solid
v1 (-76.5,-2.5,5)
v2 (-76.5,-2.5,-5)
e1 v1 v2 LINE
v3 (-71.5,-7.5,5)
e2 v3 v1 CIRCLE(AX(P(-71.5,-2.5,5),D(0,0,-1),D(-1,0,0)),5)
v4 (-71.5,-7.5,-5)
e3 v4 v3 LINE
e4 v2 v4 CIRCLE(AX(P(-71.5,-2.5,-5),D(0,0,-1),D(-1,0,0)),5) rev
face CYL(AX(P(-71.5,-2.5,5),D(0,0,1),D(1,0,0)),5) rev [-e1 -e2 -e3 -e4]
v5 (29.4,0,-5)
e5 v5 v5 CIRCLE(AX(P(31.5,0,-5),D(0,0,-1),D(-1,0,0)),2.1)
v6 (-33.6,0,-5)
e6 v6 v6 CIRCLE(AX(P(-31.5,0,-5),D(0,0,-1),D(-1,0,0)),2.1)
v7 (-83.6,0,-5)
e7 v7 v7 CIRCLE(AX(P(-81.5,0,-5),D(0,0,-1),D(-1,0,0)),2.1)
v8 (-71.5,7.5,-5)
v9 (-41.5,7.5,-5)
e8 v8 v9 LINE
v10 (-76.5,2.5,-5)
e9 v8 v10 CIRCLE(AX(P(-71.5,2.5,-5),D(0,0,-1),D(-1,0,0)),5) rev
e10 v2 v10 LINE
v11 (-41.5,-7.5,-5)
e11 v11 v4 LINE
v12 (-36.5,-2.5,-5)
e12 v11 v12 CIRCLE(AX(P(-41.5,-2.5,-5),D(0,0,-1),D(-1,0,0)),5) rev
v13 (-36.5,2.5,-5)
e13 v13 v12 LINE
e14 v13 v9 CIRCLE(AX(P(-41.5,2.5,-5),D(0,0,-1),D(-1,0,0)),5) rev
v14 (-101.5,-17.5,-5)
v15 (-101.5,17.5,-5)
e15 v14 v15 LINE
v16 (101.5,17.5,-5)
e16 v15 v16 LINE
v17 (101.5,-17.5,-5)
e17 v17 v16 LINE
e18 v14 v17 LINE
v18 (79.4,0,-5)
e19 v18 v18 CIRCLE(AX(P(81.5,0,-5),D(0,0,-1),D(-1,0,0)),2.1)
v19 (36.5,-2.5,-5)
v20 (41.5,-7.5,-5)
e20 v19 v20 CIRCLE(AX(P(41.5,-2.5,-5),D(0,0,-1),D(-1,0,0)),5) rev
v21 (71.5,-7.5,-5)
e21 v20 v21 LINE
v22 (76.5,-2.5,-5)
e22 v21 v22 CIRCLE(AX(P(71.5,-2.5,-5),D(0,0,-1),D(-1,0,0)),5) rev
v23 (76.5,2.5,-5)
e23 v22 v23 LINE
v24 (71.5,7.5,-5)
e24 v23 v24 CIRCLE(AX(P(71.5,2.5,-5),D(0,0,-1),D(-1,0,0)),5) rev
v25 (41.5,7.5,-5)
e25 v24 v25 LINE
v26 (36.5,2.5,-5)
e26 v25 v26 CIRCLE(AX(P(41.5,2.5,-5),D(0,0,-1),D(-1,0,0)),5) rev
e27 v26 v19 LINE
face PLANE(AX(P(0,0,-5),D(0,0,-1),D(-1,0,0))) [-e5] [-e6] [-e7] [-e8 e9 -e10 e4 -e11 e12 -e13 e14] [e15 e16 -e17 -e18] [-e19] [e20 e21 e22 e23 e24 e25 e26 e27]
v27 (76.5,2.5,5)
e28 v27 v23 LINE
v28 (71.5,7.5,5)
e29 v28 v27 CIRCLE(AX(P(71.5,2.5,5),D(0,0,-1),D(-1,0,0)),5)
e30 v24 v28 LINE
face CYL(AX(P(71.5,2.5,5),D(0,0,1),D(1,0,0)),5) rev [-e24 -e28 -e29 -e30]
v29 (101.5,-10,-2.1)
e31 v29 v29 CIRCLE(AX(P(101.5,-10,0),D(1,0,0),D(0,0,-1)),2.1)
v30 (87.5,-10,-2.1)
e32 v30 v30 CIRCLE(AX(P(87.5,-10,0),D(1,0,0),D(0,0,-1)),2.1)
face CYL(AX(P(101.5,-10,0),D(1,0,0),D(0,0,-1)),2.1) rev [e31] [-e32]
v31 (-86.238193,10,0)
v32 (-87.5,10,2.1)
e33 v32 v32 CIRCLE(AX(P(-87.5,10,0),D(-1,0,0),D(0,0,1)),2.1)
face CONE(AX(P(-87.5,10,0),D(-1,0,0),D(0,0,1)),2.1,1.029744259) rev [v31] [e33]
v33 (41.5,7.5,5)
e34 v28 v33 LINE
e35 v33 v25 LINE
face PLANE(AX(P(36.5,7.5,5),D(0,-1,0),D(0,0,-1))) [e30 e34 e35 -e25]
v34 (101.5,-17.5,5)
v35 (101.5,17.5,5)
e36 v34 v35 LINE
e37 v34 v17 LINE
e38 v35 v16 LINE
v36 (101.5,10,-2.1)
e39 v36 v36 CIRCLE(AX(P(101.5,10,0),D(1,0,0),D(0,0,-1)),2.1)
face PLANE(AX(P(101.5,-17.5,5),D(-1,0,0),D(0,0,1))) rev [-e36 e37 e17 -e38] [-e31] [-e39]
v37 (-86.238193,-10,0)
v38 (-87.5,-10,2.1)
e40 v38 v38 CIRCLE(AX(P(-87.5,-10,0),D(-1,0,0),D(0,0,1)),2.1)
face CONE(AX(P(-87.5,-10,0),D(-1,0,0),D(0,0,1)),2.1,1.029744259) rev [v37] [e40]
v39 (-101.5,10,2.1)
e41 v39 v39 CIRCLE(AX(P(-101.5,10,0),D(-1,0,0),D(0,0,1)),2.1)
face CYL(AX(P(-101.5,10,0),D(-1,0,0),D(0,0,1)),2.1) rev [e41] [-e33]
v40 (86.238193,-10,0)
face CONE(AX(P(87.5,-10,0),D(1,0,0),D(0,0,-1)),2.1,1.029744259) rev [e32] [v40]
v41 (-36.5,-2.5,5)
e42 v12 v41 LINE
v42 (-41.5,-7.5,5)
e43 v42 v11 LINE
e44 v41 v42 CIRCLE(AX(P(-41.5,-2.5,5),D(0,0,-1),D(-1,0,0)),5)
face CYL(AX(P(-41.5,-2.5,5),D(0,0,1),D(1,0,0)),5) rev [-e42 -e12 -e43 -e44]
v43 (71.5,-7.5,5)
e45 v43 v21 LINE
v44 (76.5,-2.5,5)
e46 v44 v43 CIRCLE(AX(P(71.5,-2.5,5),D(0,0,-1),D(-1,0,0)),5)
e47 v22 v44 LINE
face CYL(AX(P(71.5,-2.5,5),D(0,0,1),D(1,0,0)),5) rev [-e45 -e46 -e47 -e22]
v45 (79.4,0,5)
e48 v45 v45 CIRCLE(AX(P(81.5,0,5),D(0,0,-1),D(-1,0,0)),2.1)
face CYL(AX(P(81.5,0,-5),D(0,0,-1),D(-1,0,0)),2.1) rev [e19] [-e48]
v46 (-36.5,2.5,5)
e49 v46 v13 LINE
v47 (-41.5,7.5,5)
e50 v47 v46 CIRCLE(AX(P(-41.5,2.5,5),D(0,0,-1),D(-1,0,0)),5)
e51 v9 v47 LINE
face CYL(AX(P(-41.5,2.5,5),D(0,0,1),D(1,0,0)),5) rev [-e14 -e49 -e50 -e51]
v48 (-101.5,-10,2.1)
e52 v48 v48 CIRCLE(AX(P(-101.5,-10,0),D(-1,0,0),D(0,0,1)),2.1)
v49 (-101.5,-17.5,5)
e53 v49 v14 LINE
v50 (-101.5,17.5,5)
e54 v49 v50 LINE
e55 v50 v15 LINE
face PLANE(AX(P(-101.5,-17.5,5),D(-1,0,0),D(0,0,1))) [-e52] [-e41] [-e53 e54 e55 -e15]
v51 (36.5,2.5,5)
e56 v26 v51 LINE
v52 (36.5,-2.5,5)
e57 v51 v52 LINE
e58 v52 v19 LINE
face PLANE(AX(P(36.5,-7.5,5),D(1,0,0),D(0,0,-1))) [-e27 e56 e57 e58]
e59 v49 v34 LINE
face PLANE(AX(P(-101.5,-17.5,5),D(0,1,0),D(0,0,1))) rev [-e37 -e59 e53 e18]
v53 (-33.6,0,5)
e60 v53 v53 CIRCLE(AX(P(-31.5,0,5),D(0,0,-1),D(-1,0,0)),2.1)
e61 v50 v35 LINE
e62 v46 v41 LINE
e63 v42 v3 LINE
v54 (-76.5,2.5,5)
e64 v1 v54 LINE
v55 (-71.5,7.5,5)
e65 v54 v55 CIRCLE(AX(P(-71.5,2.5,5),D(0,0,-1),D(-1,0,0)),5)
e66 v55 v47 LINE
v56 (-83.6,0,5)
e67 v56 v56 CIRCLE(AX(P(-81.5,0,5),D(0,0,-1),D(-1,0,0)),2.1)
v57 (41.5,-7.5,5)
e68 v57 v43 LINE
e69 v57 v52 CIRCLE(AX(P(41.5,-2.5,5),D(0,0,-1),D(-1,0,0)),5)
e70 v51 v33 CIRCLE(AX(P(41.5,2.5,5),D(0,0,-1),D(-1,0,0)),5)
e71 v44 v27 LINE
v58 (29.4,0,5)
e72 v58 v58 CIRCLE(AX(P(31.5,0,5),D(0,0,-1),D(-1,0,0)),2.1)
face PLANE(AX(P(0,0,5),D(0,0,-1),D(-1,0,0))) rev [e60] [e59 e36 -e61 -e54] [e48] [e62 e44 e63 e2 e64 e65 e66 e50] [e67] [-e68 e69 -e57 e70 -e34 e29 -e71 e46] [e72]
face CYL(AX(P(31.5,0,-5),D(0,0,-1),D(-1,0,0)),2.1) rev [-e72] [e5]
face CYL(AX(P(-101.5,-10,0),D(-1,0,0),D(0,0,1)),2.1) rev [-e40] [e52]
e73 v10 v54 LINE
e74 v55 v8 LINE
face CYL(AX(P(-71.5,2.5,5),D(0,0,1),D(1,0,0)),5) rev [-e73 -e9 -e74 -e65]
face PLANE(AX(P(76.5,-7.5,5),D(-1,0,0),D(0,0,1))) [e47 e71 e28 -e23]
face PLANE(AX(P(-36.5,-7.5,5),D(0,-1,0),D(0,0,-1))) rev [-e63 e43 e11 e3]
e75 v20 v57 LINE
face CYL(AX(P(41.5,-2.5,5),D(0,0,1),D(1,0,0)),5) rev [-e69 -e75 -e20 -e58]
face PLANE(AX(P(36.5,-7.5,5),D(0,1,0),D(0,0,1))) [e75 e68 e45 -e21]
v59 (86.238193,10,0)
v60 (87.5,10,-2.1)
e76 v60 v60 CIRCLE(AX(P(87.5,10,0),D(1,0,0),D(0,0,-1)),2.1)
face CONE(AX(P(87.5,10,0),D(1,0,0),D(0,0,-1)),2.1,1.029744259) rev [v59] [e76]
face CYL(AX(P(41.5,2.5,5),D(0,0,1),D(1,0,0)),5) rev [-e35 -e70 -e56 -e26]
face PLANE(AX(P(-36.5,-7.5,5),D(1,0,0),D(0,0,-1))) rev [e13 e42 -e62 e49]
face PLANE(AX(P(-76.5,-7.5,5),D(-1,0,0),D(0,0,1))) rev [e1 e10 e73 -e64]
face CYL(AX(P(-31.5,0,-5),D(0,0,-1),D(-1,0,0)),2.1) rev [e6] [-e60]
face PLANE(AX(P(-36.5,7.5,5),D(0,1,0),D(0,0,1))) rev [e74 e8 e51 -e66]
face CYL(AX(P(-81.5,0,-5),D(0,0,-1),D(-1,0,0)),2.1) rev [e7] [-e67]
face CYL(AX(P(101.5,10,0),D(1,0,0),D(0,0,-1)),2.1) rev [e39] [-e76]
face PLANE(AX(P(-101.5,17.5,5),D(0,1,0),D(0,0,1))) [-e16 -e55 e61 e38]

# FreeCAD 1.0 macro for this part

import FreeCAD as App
import Part
import Sketcher

V = App.Vector
Q = App.Units.Quantity


def edges_at(feature, points):
    """Names of the edges that pass closest to the given points."""
    edges = feature.Shape.Edges
    near = lambda p: min(range(len(edges)), key=lambda i: edges[i].distToShape(Part.Vertex(*p))[0])
    return sorted({f"Edge{near(p) + 1}" for p in points})


def add_polygon(sketch, points):
    """Adds a closed chain of lines whose ends are joined by coincident constraints."""
    first, n = sketch.GeometryCount, len(points)
    for a, b in zip(points, points[1:] + points[:1]):
        sketch.addGeometry(Part.LineSegment(App.Vector(*a, 0), App.Vector(*b, 0)), False)
    for i in range(n):
        sketch.addConstraint(Sketcher.Constraint("Coincident", first + i, 2, first + (i + 1) % n, 1))

doc = App.newDocument("Part")
body = doc.addObject("PartDesign::Body", "Body")

# Sketch on XY plane
sketch1 = body.newObject("Sketcher::SketchObject", "Sketch")
sketch1.AttachmentSupport = (doc.getObject("XY_Plane"), [""])
sketch1.MapMode = "FlatFace"
add_polygon(sketch1, [(-101.5, 17.5), (-101.5, -17.5), (101.5, -17.5), (101.5, 17.5)])  # lines 0-3
sketch1.addConstraint([
    Sketcher.Constraint("Vertical", 0),
    Sketcher.Constraint("Horizontal", 1),
    Sketcher.Constraint("Vertical", 2),
    Sketcher.Constraint("Horizontal", 3),
    Sketcher.Constraint("Symmetric", 0, 2, 2, 2, -1, 1),
    Sketcher.Constraint("DistanceX", 1, 1, 1, 2, Q("203 mm")),
    Sketcher.Constraint("DistanceY", 0, 2, 0, 1, Q("35 mm")),
])
pad1 = body.newObject("PartDesign::Pad", "Pad")
pad1.Profile = sketch1
pad1.Length = 10
pad1.Midplane = True

# Sketch on XZ plane
sketch2 = body.newObject("Sketcher::SketchObject", "Sketch001")
sketch2.AttachmentSupport = (doc.getObject("XZ_Plane"), [""])
sketch2.MapMode = "FlatFace"
sketch2.AttachmentOffset = App.Placement(V(0, 0, -10), App.Rotation())
add_polygon(sketch2, [(-86.238193, 0), (-101.5, 0), (-101.5, 2.1), (-87.5, 2.1)])  # lines 0-3
sketch2.addConstraint([
    Sketcher.Constraint("Horizontal", 0),
    Sketcher.Constraint("Vertical", 1),
    Sketcher.Constraint("Horizontal", 2),
    Sketcher.Constraint("PointOnObject", 0, 2, -1),
    Sketcher.Constraint("DistanceX", 2, 1, 2, 2, Q("14 mm")),
    Sketcher.Constraint("Angle", 3, Q("-59 deg")),
    Sketcher.Constraint("DistanceY", 1, 1, 1, 2, Q("2.1 mm")),
    Sketcher.Constraint("DistanceX", 0, 2, -1, 1, Q("101.5 mm")),
])
groove = body.newObject("PartDesign::Groove", "Groove")
groove.Profile = sketch2
groove.ReferenceAxis = (sketch2, ["H_Axis"])
groove.Angle = 360
doc.recompute()

linearpattern = body.newObject("PartDesign::LinearPattern", "LinearPattern")
linearpattern.Originals = [groove]
linearpattern.Direction = (doc.getObject("Y_Axis"), [""])
linearpattern.Mode = "offset"
linearpattern.Offset = 20
linearpattern.Occurrences = 2
linearpattern.Reversed = True
body.Tip = linearpattern
doc.recompute()

mirrored = body.newObject("PartDesign::Mirrored", "Mirrored")
mirrored.Originals = [groove]
mirrored.MirrorPlane = (doc.getObject("YZ_Plane"), [""])
body.Tip = mirrored

# Sketch on XZ plane
sketch3 = body.newObject("Sketcher::SketchObject", "Sketch002")
sketch3.AttachmentSupport = (doc.getObject("XZ_Plane"), [""])
sketch3.MapMode = "FlatFace"
sketch3.AttachmentOffset = App.Placement(V(0, 0, 10), App.Rotation())
add_polygon(sketch3, [(101.5, 0), (86.238193, 0), (87.5, 2.1), (101.5, 2.1)])  # lines 0-3
sketch3.addConstraint([
    Sketcher.Constraint("Horizontal", 0),
    Sketcher.Constraint("Horizontal", 2),
    Sketcher.Constraint("Vertical", 3),
    Sketcher.Constraint("PointOnObject", 0, 2, -1),
    Sketcher.Constraint("DistanceX", 2, 1, 2, 2, Q("14 mm")),
    Sketcher.Constraint("Angle", 1, Q("59 deg")),
    Sketcher.Constraint("DistanceY", 3, 2, 3, 1, Q("2.1 mm")),
    Sketcher.Constraint("DistanceX", -1, 1, 1, 2, Q("87.5 mm")),
])
groove2 = body.newObject("PartDesign::Groove", "Groove001")
groove2.Profile = sketch3
groove2.ReferenceAxis = (sketch3, ["H_Axis"])
groove2.Angle = 360

# Sketch on XY plane
sketch4 = body.newObject("Sketcher::SketchObject", "Sketch003")
sketch4.AttachmentSupport = (doc.getObject("XY_Plane"), [""])
sketch4.MapMode = "FlatFace"
sketch4.AttachmentOffset = App.Placement(V(0, 0, -5), App.Rotation())
add_polygon(sketch4, [(-36.5, 7.5), (-36.5, -7.5), (-76.5, -7.5), (-76.5, 7.5)])  # lines 0-3
sketch4.addConstraint([
    Sketcher.Constraint("Vertical", 0),
    Sketcher.Constraint("Horizontal", 1),
    Sketcher.Constraint("Vertical", 2),
    Sketcher.Constraint("Horizontal", 3),
    Sketcher.Constraint("DistanceX", 1, 2, 1, 1, Q("40 mm")),
    Sketcher.Constraint("DistanceY", 0, 2, 0, 1, Q("15 mm")),
    Sketcher.Constraint("DistanceX", 0, 2, -1, 1, Q("36.5 mm")),
    Sketcher.Constraint("DistanceY", 0, 2, -1, 1, Q("7.5 mm")),
])
pocket1 = body.newObject("PartDesign::Pocket", "Pocket")
pocket1.Profile = sketch4
pocket1.Length = 10
pocket1.Reversed = True
doc.recompute()

fillet = body.newObject("PartDesign::Fillet", "Fillet")
fillet.Base = (pocket1, edges_at(pocket1, [
    (-76.5, 7.5, 0),
    (-76.5, -7.5, 0),
    (-36.5, -7.5, 0),
    (-36.5, 7.5, 0),
]))
fillet.Radius = 5

# Sketch on XY plane
sketch5 = body.newObject("Sketcher::SketchObject", "Sketch004")
sketch5.AttachmentSupport = (doc.getObject("XY_Plane"), [""])
sketch5.MapMode = "FlatFace"
sketch5.AttachmentOffset = App.Placement(V(0, 0, -5), App.Rotation())
sketch5.addGeometry([
    Part.Circle(V(-81.5, 0, 0), V(0, 0, 1), 2.1),
    Part.Circle(V(-31.5, 0, 0), V(0, 0, 1), 2.1),
], False)
sketch5.addConstraint([
    Sketcher.Constraint("Equal", 0, 1),
    Sketcher.Constraint("PointOnObject", 0, 3, -1),
    Sketcher.Constraint("PointOnObject", 1, 3, -1),
    Sketcher.Constraint("Diameter", 0, Q("4.2 mm")),
    Sketcher.Constraint("DistanceX", 0, 3, 1, 3, Q("50 mm")),
    Sketcher.Constraint("DistanceX", 0, 3, -1, 1, Q("81.5 mm")),
])
doc.recompute()
hole = body.newObject("PartDesign::Hole", "Hole")
hole.Profile = sketch5
hole.ThreadType = "None"
hole.Diameter = 4.2
hole.DepthType = "ThroughAll"
hole.Reversed = True
doc.recompute()

mirrored2 = body.newObject("PartDesign::Mirrored", "Mirrored001")
mirrored2.Originals = [pocket1, hole]
mirrored2.MirrorPlane = (doc.getObject("YZ_Plane"), [""])
body.Tip = mirrored2
doc.recompute()

fillet2 = body.newObject("PartDesign::Fillet", "Fillet001")
fillet2.Base = (mirrored2, edges_at(mirrored2, [
    (76.5, 7.5, 0),
    (76.5, -7.5, 0),
    (36.5, -7.5, 0),
    (36.5, 7.5, 0),
]))
fillet2.Radius = 5

doc.recompute()
